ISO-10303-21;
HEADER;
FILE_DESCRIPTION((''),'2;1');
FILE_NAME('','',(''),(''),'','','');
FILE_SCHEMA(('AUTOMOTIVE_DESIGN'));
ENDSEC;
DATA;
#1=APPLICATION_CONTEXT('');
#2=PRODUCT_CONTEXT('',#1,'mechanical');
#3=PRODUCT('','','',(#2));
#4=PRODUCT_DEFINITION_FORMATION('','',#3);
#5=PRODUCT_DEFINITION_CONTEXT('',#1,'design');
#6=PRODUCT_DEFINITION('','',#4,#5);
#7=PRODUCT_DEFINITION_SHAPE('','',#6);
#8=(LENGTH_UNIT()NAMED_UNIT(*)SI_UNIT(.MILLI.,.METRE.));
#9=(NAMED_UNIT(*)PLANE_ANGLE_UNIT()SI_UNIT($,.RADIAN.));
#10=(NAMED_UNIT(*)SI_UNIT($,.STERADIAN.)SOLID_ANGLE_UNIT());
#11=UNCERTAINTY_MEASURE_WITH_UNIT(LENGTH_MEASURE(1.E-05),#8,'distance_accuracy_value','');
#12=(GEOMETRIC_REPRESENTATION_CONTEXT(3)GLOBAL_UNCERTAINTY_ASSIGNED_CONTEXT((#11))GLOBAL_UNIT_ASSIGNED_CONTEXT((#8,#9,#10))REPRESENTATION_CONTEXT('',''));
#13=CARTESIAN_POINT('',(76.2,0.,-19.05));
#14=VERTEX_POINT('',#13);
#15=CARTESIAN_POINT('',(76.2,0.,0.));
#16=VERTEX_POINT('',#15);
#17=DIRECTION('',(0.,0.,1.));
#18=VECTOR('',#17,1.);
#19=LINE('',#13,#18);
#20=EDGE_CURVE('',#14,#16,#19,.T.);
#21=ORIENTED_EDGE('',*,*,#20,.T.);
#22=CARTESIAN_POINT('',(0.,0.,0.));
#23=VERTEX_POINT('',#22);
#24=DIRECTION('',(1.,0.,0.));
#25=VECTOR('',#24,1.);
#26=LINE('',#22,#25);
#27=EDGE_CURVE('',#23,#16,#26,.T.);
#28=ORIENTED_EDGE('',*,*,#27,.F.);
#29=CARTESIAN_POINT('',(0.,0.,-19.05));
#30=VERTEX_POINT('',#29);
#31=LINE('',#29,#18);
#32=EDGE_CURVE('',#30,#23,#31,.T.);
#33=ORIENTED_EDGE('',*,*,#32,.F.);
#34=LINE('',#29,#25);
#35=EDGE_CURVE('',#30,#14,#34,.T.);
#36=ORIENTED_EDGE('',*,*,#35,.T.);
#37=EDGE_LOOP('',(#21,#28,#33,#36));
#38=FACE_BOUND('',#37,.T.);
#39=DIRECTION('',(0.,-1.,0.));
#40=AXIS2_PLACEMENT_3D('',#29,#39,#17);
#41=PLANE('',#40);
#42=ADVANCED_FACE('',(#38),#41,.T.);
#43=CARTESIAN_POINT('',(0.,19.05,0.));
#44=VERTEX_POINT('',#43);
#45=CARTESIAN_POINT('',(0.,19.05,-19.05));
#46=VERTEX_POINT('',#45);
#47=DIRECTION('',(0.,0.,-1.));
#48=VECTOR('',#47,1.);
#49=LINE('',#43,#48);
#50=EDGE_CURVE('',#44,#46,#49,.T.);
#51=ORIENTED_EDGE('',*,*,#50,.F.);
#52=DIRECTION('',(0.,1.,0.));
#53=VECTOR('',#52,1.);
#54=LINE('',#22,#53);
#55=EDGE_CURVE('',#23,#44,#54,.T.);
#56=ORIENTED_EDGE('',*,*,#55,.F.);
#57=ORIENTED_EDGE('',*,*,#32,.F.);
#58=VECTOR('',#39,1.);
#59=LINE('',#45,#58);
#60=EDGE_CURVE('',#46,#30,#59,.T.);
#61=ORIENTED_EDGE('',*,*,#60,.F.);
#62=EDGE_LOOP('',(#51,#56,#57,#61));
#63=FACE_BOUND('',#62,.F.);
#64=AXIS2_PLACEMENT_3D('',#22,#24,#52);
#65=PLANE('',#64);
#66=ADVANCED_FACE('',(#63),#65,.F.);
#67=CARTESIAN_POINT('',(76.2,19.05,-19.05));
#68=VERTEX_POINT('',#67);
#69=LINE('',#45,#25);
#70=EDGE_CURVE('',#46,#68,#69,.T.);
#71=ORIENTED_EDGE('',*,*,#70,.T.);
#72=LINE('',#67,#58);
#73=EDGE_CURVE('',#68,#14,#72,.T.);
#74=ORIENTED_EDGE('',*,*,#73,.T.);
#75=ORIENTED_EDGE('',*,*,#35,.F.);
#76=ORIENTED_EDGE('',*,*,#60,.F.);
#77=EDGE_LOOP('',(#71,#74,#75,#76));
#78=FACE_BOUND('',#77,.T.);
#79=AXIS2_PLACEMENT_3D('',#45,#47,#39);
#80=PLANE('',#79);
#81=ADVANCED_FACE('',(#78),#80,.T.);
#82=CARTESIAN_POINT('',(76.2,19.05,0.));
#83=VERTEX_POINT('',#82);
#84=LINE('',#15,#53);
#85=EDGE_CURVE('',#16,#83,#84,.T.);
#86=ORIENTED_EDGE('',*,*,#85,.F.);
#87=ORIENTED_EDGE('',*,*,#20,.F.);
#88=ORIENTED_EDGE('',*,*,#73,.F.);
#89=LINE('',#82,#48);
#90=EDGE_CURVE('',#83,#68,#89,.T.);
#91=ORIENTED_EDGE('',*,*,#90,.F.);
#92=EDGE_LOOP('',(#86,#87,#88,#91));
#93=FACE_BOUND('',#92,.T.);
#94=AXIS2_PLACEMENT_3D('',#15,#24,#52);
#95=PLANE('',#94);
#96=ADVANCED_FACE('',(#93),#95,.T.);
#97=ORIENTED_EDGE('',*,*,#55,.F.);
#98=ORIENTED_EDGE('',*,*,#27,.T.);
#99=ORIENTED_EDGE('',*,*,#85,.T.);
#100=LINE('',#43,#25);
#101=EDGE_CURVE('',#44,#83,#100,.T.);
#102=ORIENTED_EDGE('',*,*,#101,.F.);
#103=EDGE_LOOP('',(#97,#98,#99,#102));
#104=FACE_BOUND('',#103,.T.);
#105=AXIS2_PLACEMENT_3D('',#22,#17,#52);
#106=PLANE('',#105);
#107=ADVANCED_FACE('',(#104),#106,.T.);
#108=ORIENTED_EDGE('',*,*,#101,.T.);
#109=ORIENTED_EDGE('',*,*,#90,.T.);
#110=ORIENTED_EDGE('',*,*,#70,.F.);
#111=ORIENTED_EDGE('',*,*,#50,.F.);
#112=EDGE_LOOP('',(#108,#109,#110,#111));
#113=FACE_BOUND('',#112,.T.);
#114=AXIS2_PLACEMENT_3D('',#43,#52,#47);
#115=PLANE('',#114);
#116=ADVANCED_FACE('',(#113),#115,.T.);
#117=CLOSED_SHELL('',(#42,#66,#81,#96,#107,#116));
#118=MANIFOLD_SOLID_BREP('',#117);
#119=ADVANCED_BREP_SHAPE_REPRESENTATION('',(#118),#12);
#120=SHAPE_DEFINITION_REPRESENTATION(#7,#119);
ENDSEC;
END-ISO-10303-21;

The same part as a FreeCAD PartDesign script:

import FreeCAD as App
import Part
import Sketcher
from FreeCAD import Vector
Q = App.Units.Quantity


def add_polygon(sketch, points):
    """Adds a closed chain of lines whose ends are joined by coincident constraints."""
    first, n = sketch.GeometryCount, len(points)
    for a, b in zip(points, points[1:] + points[:1]):
        sketch.addGeometry(Part.LineSegment(App.Vector(*a, 0), App.Vector(*b, 0)), False)
    for i in range(n):
        sketch.addConstraint(Sketcher.Constraint("Coincident", first + i, 2, first + (i + 1) % n, 1))

doc = App.newDocument("Part")
body = doc.addObject("PartDesign::Body", "Body")

# Sketch on YZ plane
sketch1 = doc.addObject("Sketcher::SketchObject", "Sketch")
body.addObject(sketch1)
sketch1.AttachmentSupport = (doc.YZ_Plane, [""])
sketch1.MapMode = "FlatFace"
add_polygon(sketch1, [(19.05, 0), (0, 0), (0, -19.05), (19.05, -19.05)])  # lines 0-3
sketch1.addConstraint([
    Sketcher.Constraint("Horizontal", 0),
    Sketcher.Constraint("Vertical", 1),
    Sketcher.Constraint("Horizontal", 2),
    Sketcher.Constraint("Vertical", 3),
    Sketcher.Constraint("Coincident", 0, 2, -1, 1),
    Sketcher.Constraint("Equal", 2, 1),
    Sketcher.Constraint("DistanceX", 0, 2, 0, 1, Q("0.75 in")),
])
pad1 = doc.addObject("PartDesign::Pad", "Pad")
body.addObject(pad1)
pad1.Profile = sketch1
pad1.Length = Q("3 in")

doc.recompute()
